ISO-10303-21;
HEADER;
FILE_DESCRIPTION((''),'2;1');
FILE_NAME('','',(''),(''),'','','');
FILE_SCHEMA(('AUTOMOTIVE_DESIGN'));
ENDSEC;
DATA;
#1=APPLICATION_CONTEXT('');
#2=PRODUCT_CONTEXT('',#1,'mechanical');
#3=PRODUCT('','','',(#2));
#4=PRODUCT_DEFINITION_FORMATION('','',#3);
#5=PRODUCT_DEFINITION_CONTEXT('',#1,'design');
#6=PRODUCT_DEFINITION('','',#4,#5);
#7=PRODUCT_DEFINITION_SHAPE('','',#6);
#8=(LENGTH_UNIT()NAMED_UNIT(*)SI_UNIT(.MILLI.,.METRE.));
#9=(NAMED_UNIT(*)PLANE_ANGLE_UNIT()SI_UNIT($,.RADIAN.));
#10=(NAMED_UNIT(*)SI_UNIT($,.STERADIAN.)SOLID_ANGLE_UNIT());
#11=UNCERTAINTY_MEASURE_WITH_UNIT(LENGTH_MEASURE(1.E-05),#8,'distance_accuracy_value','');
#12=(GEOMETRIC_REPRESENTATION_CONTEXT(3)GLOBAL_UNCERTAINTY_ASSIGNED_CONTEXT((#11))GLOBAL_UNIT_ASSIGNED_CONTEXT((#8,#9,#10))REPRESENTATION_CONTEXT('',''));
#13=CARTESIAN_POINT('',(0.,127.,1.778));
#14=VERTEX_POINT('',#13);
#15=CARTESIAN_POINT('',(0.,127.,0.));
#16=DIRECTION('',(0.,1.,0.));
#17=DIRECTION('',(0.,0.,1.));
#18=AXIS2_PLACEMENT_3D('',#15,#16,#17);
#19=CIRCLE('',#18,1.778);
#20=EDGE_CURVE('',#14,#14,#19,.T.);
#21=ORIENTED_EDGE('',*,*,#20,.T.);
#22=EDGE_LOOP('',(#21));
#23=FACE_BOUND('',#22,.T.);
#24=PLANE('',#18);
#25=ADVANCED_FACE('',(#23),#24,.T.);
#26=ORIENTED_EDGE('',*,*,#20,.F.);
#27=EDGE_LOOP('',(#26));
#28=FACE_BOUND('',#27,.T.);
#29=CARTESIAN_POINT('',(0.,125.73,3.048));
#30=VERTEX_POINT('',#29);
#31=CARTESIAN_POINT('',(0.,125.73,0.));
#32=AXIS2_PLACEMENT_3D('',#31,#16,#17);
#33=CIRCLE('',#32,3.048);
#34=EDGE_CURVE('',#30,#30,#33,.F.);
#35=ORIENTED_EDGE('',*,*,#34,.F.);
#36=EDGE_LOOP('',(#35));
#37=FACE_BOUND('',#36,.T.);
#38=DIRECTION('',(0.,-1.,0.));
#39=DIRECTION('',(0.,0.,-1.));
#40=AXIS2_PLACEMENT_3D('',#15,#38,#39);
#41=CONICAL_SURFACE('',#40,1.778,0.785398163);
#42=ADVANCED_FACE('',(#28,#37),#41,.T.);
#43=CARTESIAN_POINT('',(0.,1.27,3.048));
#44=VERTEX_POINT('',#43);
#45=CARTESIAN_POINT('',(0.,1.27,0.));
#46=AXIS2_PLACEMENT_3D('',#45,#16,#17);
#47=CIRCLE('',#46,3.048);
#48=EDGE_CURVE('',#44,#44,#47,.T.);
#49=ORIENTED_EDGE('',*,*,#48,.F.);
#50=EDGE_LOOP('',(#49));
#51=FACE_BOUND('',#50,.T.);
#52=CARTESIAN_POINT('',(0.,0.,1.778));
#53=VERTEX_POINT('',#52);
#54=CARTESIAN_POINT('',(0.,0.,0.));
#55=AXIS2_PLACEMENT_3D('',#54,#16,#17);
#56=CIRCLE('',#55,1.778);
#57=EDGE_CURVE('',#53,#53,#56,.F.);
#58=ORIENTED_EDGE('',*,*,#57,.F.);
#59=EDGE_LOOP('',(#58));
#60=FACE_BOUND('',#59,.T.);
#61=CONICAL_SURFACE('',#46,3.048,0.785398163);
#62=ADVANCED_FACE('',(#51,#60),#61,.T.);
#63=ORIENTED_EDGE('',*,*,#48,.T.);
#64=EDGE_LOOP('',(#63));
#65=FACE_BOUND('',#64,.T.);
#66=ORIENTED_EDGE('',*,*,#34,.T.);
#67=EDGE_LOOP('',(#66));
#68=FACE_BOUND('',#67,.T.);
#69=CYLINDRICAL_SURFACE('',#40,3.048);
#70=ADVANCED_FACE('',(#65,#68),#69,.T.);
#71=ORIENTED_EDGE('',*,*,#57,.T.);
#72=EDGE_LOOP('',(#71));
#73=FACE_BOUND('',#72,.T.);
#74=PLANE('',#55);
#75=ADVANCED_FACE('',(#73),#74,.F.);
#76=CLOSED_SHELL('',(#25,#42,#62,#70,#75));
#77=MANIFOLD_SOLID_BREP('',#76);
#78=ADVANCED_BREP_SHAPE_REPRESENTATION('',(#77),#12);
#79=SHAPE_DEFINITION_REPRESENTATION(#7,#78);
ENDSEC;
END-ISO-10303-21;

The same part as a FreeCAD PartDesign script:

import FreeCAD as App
import Part
import Sketcher
from FreeCAD import Vector
Q = App.Units.Quantity


def edges_at(feature, points):
    """Names of the edges that pass closest to the given points."""
    edges = feature.Shape.Edges
    near = lambda p: min(range(len(edges)), key=lambda i: edges[i].distToShape(Part.Vertex(*p))[0])
    return sorted({f"Edge{near(p) + 1}" for p in points})

doc = App.newDocument("Part")
body = doc.addObject("PartDesign::Body", "Body")

sketch1 = body.newObject("Sketcher::SketchObject", "Sketch")
sketch1.AttachmentSupport = (doc.getObject("XZ_Plane"), [""])
sketch1.MapMode = "FlatFace"
sketch1.addGeometry(Part.Circle(Vector(0, 0, 0), Vector(0, 0, 1), 3), False)
sketch1.addConstraint([
    Sketcher.Constraint("Coincident", 0, 3, -1, 1),
    Sketcher.Constraint("Diameter", 0, Q("0.24 in")),
])
pad1 = body.newObject("PartDesign::Pad", "Pad")
pad1.Profile = sketch1
pad1.Length = Q("5 in")
pad1.Reversed = True
doc.recompute()

chamfer = body.newObject("PartDesign::Chamfer", "Chamfer")
chamfer.Base = (pad1, edges_at(pad1, [(0, 127, -3.048)]))
chamfer.Size = Q("0.05 in")
doc.recompute()

chamfer2 = body.newObject("PartDesign::Chamfer", "Chamfer001")
chamfer2.Base = (chamfer, edges_at(chamfer, [(0, 0, -3.048)]))
chamfer2.Size = Q("0.05 in")

doc.recompute()
